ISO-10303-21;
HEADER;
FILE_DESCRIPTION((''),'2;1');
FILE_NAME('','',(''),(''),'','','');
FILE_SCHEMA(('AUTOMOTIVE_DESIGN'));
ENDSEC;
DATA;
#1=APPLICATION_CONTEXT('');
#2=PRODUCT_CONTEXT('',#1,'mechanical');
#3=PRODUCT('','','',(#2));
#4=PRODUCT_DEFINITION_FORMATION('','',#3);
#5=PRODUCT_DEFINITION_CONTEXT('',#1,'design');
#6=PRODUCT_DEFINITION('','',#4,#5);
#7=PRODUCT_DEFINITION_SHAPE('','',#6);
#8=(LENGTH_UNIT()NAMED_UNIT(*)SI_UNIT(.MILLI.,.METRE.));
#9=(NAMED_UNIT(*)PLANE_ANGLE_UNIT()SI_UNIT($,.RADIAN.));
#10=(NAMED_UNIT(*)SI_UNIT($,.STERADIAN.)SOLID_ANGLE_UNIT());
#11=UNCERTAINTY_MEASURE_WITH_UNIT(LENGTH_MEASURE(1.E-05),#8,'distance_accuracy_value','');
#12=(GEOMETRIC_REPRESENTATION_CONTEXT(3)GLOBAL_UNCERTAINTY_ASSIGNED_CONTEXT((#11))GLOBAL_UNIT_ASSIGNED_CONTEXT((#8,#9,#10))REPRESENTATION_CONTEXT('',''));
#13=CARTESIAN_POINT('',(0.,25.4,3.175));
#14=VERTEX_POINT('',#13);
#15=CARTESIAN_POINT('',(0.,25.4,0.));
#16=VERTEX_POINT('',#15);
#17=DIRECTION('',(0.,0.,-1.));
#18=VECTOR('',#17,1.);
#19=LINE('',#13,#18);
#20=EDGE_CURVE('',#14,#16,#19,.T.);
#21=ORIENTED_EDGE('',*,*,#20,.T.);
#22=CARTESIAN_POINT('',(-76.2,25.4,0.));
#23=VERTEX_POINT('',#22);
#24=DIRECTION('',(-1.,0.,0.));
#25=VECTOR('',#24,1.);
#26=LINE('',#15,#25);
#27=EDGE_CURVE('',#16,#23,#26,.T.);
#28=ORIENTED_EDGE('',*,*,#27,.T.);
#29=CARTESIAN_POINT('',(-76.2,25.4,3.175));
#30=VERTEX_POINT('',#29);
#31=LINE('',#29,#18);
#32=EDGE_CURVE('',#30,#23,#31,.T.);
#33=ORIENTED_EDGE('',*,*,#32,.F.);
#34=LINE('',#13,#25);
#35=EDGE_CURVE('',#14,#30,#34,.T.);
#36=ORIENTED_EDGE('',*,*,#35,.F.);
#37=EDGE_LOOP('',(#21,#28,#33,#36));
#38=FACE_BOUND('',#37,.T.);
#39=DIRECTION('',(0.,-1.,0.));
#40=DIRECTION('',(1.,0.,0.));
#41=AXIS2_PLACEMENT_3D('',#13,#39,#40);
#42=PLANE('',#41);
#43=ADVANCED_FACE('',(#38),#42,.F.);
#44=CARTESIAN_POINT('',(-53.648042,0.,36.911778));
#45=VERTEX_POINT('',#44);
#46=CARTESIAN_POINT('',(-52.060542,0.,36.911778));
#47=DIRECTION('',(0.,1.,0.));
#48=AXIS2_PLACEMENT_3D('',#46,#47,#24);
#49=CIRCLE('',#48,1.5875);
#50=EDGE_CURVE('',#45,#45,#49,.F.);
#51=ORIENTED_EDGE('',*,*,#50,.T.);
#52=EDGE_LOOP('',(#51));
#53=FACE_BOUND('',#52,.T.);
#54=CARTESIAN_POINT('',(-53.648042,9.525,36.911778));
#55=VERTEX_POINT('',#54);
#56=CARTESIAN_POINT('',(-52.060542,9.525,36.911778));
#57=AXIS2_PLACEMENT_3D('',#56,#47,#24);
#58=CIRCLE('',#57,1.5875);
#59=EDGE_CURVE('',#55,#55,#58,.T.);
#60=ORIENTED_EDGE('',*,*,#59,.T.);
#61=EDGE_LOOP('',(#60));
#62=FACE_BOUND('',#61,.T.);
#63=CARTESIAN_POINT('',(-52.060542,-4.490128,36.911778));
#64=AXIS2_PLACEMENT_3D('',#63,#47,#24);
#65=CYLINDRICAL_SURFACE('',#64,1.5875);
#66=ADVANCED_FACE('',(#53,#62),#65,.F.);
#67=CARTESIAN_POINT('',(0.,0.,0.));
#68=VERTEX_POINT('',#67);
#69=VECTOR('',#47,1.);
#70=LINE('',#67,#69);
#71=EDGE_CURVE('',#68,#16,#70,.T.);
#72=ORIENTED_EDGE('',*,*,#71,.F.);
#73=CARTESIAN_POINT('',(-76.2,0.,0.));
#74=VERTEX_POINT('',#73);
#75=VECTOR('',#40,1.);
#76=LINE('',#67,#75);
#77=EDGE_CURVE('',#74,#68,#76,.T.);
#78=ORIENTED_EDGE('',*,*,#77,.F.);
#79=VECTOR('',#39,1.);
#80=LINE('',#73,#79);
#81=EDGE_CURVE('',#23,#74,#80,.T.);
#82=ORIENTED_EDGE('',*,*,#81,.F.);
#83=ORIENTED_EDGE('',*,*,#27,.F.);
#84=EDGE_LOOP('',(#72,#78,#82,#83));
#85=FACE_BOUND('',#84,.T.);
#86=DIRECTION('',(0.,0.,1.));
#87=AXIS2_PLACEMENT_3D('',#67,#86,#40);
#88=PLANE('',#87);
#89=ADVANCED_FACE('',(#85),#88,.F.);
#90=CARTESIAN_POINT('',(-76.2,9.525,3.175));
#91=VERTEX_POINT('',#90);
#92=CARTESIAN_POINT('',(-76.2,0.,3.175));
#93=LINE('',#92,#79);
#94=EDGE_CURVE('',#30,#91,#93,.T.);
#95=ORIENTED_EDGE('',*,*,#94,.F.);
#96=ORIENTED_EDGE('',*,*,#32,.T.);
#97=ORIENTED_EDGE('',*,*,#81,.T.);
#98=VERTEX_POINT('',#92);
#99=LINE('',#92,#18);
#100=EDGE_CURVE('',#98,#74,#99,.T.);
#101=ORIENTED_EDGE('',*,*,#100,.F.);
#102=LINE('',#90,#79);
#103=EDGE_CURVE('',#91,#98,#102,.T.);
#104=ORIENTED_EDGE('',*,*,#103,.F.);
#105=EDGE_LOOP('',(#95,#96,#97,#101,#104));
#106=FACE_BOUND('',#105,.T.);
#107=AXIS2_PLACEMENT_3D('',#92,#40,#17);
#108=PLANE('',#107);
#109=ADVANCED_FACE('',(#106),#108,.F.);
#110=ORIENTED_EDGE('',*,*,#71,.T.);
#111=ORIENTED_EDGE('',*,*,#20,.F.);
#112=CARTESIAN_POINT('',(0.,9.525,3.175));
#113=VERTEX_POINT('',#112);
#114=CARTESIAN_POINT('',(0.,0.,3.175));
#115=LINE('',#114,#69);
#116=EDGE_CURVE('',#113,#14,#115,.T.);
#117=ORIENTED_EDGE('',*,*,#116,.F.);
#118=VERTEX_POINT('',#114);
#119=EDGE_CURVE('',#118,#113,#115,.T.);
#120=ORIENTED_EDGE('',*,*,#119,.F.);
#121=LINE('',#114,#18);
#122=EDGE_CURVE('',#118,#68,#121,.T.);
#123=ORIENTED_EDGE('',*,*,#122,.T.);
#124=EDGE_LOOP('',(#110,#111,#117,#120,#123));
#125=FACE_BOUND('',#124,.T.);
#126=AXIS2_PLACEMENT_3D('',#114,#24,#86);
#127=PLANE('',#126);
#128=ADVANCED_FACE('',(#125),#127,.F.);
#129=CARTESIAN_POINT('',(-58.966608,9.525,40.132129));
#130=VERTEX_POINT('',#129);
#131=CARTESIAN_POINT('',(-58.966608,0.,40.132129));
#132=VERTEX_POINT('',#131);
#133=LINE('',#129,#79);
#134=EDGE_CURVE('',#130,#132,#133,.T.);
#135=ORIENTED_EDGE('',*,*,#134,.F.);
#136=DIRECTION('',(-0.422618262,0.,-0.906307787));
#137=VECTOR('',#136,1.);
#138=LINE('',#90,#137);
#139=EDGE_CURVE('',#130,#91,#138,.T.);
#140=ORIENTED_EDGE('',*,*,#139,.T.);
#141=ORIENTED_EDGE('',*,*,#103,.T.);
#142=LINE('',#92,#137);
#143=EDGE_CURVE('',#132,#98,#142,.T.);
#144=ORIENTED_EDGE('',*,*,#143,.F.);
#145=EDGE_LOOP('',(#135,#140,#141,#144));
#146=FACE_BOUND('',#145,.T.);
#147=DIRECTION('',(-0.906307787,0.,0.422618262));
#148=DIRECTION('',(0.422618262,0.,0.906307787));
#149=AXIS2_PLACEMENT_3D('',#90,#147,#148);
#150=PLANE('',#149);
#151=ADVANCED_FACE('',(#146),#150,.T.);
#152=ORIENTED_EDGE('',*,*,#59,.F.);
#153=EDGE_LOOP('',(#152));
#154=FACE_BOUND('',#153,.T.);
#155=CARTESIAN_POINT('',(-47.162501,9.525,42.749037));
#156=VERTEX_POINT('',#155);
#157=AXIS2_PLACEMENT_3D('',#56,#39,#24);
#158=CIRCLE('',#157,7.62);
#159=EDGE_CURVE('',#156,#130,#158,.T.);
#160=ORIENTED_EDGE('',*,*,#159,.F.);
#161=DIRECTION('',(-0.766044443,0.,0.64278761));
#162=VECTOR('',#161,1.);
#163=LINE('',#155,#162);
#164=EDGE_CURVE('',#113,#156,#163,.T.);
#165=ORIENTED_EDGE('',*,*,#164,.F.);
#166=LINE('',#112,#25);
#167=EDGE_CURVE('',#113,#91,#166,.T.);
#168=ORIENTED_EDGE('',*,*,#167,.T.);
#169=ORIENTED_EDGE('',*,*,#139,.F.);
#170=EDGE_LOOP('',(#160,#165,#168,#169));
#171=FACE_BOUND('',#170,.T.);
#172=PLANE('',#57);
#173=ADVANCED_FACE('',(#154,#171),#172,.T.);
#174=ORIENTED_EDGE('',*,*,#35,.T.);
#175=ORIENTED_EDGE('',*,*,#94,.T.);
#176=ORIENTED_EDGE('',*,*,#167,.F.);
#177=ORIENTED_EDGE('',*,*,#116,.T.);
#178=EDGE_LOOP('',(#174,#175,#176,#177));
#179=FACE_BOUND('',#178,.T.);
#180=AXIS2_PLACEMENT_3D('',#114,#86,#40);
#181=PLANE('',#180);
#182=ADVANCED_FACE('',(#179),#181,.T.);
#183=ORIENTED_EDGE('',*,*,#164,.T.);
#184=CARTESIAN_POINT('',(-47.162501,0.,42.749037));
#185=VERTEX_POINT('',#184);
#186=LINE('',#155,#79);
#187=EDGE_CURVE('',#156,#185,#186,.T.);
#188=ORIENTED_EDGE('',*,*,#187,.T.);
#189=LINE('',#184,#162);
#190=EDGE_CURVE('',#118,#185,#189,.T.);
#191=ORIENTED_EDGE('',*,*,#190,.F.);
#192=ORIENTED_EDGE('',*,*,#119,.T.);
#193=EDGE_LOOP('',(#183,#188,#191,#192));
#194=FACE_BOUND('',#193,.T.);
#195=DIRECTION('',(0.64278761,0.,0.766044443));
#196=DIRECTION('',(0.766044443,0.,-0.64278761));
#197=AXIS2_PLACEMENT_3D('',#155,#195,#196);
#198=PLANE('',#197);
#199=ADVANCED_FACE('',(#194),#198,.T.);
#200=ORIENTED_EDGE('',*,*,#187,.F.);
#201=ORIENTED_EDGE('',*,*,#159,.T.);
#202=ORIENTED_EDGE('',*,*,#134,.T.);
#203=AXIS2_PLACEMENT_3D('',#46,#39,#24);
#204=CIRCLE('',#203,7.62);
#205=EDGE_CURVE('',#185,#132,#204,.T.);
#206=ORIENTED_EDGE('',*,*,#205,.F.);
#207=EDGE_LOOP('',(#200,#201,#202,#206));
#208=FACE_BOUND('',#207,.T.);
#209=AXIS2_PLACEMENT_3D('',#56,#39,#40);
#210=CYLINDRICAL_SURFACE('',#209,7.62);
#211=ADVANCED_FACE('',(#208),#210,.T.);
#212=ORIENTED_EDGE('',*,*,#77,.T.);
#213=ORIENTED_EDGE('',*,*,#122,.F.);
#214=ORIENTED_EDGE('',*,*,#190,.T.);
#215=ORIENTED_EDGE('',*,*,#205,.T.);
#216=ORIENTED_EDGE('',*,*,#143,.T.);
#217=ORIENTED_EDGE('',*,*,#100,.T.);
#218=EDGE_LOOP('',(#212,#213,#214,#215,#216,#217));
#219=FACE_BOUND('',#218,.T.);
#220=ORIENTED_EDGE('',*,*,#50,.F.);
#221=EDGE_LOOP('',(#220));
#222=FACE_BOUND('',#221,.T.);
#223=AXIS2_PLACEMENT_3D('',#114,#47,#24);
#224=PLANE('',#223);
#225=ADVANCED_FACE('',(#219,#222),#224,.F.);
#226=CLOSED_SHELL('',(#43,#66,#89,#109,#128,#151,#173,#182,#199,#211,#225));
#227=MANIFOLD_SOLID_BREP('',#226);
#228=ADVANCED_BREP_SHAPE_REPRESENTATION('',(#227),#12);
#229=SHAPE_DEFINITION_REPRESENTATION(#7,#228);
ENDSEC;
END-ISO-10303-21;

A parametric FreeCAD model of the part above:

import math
import FreeCAD as App
import Part
import Sketcher

V = App.Vector
Q = App.Units.Quantity

doc = App.newDocument("Part")
body = doc.addObject("PartDesign::Body", "Body")

sketch1 = body.newObject("Sketcher::SketchObject", "Sketch")
sketch1.AttachmentSupport = (doc.getObject("XY_Plane"), [""])
sketch1.MapMode = "FlatFace"
sketch1.addGeometry(Part.LineSegment(V(-76, 25, 0), V(-76, 0, 0)), False)
sketch1.addGeometry(Part.LineSegment(V(-76, 0, 0), V(0, 0, 0)), False)
sketch1.addGeometry(Part.LineSegment(V(0, 0, 0), V(0, 25, 0)), False)
sketch1.addGeometry(Part.LineSegment(V(0, 25, 0), V(-76, 25, 0)), False)
sketch1.addConstraint(Sketcher.Constraint("Coincident", 0, 2, 1, 1))
sketch1.addConstraint(Sketcher.Constraint("Coincident", 1, 2, 2, 1))
sketch1.addConstraint(Sketcher.Constraint("Coincident", 2, 2, 3, 1))
sketch1.addConstraint(Sketcher.Constraint("Coincident", 3, 2, 0, 1))
sketch1.addConstraint(Sketcher.Constraint("Vertical", 0))
sketch1.addConstraint(Sketcher.Constraint("Horizontal", 1))
sketch1.addConstraint(Sketcher.Constraint("Vertical", 2))
sketch1.addConstraint(Sketcher.Constraint("Horizontal", 3))
sketch1.addConstraint(Sketcher.Constraint("Coincident", 1, 2, -1, 1))
sketch1.addConstraint(Sketcher.Constraint("DistanceX", 1, 1, 1, 2, Q("3 in")))
sketch1.addConstraint(Sketcher.Constraint("DistanceY", 0, 2, 0, 1, Q("1 in")))
pad1 = body.newObject("PartDesign::Pad", "Pad")
pad1.Profile = sketch1
pad1.Length = Q("0.125 in")

sketch2 = body.newObject("Sketcher::SketchObject", "Sketch001")
sketch2.AttachmentSupport = (doc.getObject("XZ_Plane"), [""])
sketch2.MapMode = "FlatFace"
sketch2.addGeometry(Part.LineSegment(V(-76.2, 0, 0), V(0, 0, 0)), False)
sketch2.addGeometry(Part.LineSegment(V(0, 0, 0), V(0, 3.2, 0)), False)
sketch2.addGeometry(Part.LineSegment(V(0, 3.2, 0), V(-47.2, 42.7, 0)), False)
sketch2.addGeometry(Part.ArcOfCircle(Part.Circle(V(-52.1, 36.9, 0), V(0, 0, 1), 7.6), math.radians(50), math.radians(155)), False)
sketch2.addGeometry(Part.LineSegment(V(-59, 40.1, 0), V(-76.2, 3.2, 0)), False)
sketch2.addGeometry(Part.LineSegment(V(-76.2, 3.2, 0), V(-76.2, 0, 0)), False)
sketch2.addConstraint(Sketcher.Constraint("Coincident", 0, 2, 1, 1))
sketch2.addConstraint(Sketcher.Constraint("Coincident", 1, 2, 2, 1))
sketch2.addConstraint(Sketcher.Constraint("Tangent", 2, 2, 3, 1))
sketch2.addConstraint(Sketcher.Constraint("Tangent", 3, 2, 4, 1))
sketch2.addConstraint(Sketcher.Constraint("Coincident", 4, 2, 5, 1))
sketch2.addConstraint(Sketcher.Constraint("Coincident", 5, 2, 0, 1))
sketch2.addConstraint(Sketcher.Constraint("Horizontal", 0))
sketch2.addConstraint(Sketcher.Constraint("Vertical", 1))
sketch2.addConstraint(Sketcher.Constraint("Vertical", 5))
sketch2.addConstraint(Sketcher.Constraint("Coincident", 0, 2, -1, 1))
sketch2.addConstraint(Sketcher.Constraint("Horizontal", 1, 2, 4, 2))
sketch2.addConstraint(Sketcher.Constraint("Radius", 3, Q("0.3 in")))
sketch2.addConstraint(Sketcher.Constraint("DistanceX", 0, 1, 0, 2, Q("3 in")))
sketch2.addConstraint(Sketcher.Constraint("Angle", 2, Q("140 deg")))
sketch2.addConstraint(Sketcher.Constraint("Angle", 4, Q("-115 deg")))
sketch2.addConstraint(Sketcher.Constraint("DistanceY", 1, 1, 1, 2, Q("0.125 in")))
pad2 = body.newObject("PartDesign::Pad", "Pad001")
pad2.Profile = sketch2
pad2.Length = Q("0.375 in")
pad2.Reversed = True

sketch3 = body.newObject("Sketcher::SketchObject", "Sketch002")
sketch3.AttachmentSupport = (doc.getObject("XZ_Plane"), [""])
sketch3.MapMode = "FlatFace"
sketch3.AttachmentOffset = App.Placement(V(0, 0, -0.375 * 25.4), App.Rotation())
sketch3.addGeometry(Part.Circle(V(-52.1, 36.9, 0), V(0, 0, 1), 1.6), False)
sketch3.addConstraint(Sketcher.Constraint("Diameter", 0, Q("0.125 in")))
sketch3.addConstraint(Sketcher.Constraint("DistanceY", -1, 1, 0, 3, 36.911778))
sketch3.addConstraint(Sketcher.Constraint("DistanceX", 0, 3, -1, 1, 52.060542))
pocket1 = body.newObject("PartDesign::Pocket", "Pocket")
pocket1.Profile = sketch3
pocket1.Type = "ThroughAll"
pocket1.Midplane = True

doc.recompute()
